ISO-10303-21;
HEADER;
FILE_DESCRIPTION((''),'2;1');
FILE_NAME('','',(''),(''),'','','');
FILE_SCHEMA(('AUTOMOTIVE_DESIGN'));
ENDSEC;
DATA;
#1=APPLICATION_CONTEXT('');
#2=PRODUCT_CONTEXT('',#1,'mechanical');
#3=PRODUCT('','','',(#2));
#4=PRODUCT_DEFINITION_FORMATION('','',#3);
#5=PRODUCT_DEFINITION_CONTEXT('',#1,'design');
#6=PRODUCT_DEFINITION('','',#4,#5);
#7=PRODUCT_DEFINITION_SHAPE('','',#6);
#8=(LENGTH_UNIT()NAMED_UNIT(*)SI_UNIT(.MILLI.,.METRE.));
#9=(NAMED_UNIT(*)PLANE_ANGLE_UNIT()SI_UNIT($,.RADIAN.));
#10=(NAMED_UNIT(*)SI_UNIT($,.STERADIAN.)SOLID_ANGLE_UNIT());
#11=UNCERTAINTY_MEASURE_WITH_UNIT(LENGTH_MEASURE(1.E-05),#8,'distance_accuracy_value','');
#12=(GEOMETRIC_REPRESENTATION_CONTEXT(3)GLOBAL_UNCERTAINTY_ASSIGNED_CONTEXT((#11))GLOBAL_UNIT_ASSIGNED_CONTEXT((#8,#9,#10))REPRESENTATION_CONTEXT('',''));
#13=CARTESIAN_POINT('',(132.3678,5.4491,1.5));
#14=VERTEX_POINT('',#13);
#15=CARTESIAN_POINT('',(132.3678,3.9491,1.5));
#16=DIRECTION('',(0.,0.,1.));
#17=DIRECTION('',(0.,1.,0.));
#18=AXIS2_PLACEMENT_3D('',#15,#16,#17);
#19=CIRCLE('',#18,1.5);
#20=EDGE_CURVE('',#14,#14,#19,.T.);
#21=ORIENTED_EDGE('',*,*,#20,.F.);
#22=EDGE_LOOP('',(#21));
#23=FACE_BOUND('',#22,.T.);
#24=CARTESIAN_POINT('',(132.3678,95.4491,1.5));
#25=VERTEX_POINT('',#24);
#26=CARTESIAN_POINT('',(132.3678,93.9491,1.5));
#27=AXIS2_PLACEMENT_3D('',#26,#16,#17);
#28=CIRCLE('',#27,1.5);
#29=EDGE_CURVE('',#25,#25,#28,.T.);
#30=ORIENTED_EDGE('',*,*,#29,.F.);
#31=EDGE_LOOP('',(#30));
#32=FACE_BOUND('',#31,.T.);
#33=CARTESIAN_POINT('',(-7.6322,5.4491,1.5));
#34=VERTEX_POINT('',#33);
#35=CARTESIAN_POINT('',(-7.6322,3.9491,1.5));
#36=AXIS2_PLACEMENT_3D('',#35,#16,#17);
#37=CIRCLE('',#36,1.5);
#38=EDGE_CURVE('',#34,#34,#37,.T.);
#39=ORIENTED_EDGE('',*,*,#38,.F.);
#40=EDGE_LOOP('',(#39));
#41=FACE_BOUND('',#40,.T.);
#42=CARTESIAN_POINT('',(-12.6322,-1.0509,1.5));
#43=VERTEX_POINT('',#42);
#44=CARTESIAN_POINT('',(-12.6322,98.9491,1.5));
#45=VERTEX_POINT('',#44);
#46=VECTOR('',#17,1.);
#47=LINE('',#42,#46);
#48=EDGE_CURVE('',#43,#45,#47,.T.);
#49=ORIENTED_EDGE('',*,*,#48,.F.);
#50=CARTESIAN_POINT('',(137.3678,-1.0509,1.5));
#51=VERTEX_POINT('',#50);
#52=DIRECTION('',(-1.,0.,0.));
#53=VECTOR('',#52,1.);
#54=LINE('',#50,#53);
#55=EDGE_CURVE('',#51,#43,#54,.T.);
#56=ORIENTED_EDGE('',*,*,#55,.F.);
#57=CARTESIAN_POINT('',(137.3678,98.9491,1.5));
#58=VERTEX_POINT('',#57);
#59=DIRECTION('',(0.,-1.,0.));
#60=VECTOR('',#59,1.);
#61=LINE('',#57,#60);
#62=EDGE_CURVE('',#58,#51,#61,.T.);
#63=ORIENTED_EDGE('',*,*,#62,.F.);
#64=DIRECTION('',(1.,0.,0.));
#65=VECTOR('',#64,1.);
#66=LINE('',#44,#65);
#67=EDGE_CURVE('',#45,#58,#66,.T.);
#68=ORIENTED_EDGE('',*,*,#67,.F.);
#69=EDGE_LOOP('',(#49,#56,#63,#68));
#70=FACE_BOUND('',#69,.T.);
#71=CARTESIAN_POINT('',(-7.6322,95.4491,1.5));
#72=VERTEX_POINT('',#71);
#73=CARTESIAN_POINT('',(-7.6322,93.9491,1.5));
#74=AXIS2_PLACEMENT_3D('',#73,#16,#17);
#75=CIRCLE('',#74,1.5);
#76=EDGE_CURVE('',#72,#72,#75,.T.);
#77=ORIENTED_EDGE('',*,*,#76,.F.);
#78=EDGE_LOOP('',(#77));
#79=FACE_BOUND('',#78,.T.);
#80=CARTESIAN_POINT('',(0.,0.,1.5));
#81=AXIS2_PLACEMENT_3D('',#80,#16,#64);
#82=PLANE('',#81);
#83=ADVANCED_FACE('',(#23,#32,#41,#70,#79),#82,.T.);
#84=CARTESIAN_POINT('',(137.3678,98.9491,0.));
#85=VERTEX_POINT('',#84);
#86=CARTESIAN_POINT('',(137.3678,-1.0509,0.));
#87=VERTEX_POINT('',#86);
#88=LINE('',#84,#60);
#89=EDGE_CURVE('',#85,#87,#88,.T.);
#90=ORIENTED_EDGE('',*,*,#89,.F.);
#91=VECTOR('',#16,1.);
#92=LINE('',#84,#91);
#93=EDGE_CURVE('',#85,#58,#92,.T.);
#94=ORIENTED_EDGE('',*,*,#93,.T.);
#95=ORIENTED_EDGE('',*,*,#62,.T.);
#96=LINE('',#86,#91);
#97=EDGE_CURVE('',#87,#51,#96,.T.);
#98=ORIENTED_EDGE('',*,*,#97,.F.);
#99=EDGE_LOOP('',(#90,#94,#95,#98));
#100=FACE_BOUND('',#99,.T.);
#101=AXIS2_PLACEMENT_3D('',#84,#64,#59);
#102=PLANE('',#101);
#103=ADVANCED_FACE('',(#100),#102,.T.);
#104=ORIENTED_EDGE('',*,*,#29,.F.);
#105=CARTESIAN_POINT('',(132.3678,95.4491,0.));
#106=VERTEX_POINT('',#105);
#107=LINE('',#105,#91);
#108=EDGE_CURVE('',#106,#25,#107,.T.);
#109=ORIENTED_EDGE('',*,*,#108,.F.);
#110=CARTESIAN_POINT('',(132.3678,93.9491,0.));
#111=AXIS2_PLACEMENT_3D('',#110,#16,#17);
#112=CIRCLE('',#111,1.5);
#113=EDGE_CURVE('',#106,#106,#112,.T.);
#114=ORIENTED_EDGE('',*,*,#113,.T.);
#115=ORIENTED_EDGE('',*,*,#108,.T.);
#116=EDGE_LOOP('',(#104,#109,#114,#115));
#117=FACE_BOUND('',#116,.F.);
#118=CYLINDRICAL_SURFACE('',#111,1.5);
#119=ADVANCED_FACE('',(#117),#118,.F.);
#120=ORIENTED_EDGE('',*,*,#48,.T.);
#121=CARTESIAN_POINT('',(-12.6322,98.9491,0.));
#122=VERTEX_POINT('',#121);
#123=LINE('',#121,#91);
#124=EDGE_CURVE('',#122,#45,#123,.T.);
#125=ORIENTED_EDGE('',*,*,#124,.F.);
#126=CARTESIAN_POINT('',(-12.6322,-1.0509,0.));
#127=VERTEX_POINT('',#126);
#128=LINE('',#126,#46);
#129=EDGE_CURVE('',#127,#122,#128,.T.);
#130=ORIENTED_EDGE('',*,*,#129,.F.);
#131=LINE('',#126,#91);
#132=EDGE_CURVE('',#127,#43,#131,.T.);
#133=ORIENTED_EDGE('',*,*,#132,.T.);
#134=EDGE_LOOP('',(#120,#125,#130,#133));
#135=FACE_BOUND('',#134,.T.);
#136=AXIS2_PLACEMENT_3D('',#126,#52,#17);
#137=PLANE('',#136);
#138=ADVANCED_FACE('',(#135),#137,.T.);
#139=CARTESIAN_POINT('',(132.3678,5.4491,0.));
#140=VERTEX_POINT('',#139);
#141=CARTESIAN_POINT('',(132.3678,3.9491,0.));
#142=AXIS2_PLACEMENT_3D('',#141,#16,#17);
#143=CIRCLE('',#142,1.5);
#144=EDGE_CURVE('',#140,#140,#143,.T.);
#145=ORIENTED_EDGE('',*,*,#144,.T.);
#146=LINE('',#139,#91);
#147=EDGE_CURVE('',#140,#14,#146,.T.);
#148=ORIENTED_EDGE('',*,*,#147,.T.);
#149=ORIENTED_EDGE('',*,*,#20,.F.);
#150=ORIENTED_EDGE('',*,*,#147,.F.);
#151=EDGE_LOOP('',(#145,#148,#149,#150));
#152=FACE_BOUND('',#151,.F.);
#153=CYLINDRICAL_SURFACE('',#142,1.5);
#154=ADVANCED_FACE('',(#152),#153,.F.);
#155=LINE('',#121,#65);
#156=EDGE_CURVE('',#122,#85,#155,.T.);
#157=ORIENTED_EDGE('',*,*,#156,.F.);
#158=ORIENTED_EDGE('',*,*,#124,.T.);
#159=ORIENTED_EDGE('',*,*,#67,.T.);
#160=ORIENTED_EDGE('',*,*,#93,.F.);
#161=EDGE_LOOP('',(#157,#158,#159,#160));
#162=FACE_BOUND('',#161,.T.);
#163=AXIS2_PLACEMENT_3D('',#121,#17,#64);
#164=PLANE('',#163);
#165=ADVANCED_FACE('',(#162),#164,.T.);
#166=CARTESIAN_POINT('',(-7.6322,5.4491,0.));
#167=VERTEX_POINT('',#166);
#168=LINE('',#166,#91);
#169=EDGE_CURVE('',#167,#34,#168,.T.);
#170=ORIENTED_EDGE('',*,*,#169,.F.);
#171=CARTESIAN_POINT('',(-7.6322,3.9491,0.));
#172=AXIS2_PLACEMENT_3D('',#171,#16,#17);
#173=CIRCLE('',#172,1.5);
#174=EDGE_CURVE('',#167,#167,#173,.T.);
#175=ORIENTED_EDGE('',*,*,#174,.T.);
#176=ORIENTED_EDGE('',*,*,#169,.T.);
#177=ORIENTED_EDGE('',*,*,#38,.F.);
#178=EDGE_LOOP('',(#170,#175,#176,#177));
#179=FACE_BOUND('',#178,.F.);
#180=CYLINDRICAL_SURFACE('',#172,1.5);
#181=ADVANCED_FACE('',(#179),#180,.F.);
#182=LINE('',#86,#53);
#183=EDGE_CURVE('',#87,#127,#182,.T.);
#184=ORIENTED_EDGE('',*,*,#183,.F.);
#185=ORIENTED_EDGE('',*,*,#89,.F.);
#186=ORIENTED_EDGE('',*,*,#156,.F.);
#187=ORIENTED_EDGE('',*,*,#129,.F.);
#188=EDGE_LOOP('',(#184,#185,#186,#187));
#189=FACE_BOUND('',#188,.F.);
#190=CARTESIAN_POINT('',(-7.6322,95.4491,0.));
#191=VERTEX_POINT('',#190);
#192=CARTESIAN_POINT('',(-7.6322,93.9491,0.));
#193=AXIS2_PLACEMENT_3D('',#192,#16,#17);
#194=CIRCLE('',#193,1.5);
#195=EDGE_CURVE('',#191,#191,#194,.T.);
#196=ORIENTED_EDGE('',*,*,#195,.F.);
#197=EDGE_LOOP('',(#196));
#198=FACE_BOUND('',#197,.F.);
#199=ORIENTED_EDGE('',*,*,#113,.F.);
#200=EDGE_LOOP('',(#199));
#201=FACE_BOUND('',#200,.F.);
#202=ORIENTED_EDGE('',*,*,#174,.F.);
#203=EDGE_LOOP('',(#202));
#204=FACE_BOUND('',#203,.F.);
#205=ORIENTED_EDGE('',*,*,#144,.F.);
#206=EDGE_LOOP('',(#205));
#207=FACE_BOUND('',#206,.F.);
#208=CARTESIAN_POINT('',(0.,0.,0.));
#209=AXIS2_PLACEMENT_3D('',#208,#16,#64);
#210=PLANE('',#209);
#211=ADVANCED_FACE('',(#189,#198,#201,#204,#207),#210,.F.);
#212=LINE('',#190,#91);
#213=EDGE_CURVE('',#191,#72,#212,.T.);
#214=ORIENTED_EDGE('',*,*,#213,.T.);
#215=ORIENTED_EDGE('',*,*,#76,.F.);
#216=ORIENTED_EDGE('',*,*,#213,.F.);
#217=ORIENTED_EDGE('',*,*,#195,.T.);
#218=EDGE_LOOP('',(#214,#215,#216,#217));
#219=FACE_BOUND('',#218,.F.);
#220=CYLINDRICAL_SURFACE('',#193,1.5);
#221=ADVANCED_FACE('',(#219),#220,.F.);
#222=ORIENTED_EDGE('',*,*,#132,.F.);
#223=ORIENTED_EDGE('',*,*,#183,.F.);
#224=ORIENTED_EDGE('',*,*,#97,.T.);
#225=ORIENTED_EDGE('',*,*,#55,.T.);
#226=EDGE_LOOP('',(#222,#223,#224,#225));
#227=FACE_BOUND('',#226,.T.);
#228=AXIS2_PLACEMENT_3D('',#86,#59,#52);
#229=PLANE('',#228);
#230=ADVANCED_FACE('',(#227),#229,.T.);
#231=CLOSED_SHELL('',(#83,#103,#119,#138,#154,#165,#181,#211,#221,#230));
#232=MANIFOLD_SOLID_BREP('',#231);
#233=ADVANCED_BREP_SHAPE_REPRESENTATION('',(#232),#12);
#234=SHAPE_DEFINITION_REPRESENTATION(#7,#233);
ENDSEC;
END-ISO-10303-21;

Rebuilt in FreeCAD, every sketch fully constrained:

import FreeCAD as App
import Part
import Sketcher

V = App.Vector
Q = App.Units.Quantity


def add_polygon(sketch, points):
    """Adds a closed chain of lines whose ends are joined by coincident constraints."""
    first, n = sketch.GeometryCount, len(points)
    for a, b in zip(points, points[1:] + points[:1]):
        sketch.addGeometry(Part.LineSegment(App.Vector(*a, 0), App.Vector(*b, 0)), False)
    for i in range(n):
        sketch.addConstraint(Sketcher.Constraint("Coincident", first + i, 2, first + (i + 1) % n, 1))

doc = App.newDocument("Part")
body = doc.addObject("PartDesign::Body", "Body")

sketch1 = body.newObject("Sketcher::SketchObject", "Sketch")
sketch1.AttachmentSupport = (doc.getObject("XY_Plane"), [""])
sketch1.MapMode = "FlatFace"
add_polygon(sketch1, [(137, 99), (-13, 99), (-13, -1), (137, -1)])
sketch1.addConstraint([
    Sketcher.Constraint("Horizontal", 0),
    Sketcher.Constraint("Vertical", 1),
    Sketcher.Constraint("Horizontal", 2),
    Sketcher.Constraint("Vertical", 3),
    Sketcher.Constraint("DistanceX", 0, 2, 0, 1, Q("150 mm")),
    Sketcher.Constraint("DistanceY", 1, 2, 1, 1, Q("100 mm")),
    Sketcher.Constraint("DistanceY", -1, 1, 0, 2, Q("98.949 mm")),
    Sketcher.Constraint("DistanceX", 0, 2, -1, 1, Q("12.6322 mm")),
])
pad1 = body.newObject("PartDesign::Pad", "Pad")
pad1.Profile = sketch1
pad1.Length = 1.5

sketch2 = body.newObject("Sketcher::SketchObject", "Sketch001")
sketch2.AttachmentSupport = (doc.getObject("XY_Plane"), [""])
sketch2.MapMode = "FlatFace"
sketch2.addGeometry([
    Part.Circle(V(132.4, 3.9, 0), V(0, 0, 1), 1.5),
    Part.Circle(V(132.4, 93.9, 0), V(0, 0, 1), 1.5),
    Part.Circle(V(-7.6, 3.9, 0), V(0, 0, 1), 1.5),
    Part.Circle(V(-7.6, 93.9, 0), V(0, 0, 1), 1.5),
], False)
sketch2.addConstraint([
    Sketcher.Constraint("Equal", 0, 1),
    Sketcher.Constraint("Equal", 1, 2),
    Sketcher.Constraint("Equal", 2, 3),
    Sketcher.Constraint("Horizontal", 0, 3, 2, 3),
    Sketcher.Constraint("Horizontal", 1, 3, 3, 3),
    Sketcher.Constraint("Vertical", 0, 3, 1, 3),
    Sketcher.Constraint("Vertical", 2, 3, 3, 3),
    Sketcher.Constraint("Diameter", 0, Q("3 mm")),
    Sketcher.Constraint("DistanceY", 0, 3, 1, 3, Q("90 mm")),
    Sketcher.Constraint("DistanceX", 2, 3, 0, 3, Q("140 mm")),
    Sketcher.Constraint("DistanceY", -1, 1, 0, 3, Q("3.949 mm")),
    Sketcher.Constraint("DistanceX", -1, 1, 0, 3, Q("132.3678 mm")),
])
doc.recompute()
hole = body.newObject("PartDesign::Hole", "Hole")
hole.Profile = sketch2
hole.ThreadType = "None"
hole.Diameter = 3
hole.DepthType = "ThroughAll"
hole.Reversed = True

doc.recompute()
